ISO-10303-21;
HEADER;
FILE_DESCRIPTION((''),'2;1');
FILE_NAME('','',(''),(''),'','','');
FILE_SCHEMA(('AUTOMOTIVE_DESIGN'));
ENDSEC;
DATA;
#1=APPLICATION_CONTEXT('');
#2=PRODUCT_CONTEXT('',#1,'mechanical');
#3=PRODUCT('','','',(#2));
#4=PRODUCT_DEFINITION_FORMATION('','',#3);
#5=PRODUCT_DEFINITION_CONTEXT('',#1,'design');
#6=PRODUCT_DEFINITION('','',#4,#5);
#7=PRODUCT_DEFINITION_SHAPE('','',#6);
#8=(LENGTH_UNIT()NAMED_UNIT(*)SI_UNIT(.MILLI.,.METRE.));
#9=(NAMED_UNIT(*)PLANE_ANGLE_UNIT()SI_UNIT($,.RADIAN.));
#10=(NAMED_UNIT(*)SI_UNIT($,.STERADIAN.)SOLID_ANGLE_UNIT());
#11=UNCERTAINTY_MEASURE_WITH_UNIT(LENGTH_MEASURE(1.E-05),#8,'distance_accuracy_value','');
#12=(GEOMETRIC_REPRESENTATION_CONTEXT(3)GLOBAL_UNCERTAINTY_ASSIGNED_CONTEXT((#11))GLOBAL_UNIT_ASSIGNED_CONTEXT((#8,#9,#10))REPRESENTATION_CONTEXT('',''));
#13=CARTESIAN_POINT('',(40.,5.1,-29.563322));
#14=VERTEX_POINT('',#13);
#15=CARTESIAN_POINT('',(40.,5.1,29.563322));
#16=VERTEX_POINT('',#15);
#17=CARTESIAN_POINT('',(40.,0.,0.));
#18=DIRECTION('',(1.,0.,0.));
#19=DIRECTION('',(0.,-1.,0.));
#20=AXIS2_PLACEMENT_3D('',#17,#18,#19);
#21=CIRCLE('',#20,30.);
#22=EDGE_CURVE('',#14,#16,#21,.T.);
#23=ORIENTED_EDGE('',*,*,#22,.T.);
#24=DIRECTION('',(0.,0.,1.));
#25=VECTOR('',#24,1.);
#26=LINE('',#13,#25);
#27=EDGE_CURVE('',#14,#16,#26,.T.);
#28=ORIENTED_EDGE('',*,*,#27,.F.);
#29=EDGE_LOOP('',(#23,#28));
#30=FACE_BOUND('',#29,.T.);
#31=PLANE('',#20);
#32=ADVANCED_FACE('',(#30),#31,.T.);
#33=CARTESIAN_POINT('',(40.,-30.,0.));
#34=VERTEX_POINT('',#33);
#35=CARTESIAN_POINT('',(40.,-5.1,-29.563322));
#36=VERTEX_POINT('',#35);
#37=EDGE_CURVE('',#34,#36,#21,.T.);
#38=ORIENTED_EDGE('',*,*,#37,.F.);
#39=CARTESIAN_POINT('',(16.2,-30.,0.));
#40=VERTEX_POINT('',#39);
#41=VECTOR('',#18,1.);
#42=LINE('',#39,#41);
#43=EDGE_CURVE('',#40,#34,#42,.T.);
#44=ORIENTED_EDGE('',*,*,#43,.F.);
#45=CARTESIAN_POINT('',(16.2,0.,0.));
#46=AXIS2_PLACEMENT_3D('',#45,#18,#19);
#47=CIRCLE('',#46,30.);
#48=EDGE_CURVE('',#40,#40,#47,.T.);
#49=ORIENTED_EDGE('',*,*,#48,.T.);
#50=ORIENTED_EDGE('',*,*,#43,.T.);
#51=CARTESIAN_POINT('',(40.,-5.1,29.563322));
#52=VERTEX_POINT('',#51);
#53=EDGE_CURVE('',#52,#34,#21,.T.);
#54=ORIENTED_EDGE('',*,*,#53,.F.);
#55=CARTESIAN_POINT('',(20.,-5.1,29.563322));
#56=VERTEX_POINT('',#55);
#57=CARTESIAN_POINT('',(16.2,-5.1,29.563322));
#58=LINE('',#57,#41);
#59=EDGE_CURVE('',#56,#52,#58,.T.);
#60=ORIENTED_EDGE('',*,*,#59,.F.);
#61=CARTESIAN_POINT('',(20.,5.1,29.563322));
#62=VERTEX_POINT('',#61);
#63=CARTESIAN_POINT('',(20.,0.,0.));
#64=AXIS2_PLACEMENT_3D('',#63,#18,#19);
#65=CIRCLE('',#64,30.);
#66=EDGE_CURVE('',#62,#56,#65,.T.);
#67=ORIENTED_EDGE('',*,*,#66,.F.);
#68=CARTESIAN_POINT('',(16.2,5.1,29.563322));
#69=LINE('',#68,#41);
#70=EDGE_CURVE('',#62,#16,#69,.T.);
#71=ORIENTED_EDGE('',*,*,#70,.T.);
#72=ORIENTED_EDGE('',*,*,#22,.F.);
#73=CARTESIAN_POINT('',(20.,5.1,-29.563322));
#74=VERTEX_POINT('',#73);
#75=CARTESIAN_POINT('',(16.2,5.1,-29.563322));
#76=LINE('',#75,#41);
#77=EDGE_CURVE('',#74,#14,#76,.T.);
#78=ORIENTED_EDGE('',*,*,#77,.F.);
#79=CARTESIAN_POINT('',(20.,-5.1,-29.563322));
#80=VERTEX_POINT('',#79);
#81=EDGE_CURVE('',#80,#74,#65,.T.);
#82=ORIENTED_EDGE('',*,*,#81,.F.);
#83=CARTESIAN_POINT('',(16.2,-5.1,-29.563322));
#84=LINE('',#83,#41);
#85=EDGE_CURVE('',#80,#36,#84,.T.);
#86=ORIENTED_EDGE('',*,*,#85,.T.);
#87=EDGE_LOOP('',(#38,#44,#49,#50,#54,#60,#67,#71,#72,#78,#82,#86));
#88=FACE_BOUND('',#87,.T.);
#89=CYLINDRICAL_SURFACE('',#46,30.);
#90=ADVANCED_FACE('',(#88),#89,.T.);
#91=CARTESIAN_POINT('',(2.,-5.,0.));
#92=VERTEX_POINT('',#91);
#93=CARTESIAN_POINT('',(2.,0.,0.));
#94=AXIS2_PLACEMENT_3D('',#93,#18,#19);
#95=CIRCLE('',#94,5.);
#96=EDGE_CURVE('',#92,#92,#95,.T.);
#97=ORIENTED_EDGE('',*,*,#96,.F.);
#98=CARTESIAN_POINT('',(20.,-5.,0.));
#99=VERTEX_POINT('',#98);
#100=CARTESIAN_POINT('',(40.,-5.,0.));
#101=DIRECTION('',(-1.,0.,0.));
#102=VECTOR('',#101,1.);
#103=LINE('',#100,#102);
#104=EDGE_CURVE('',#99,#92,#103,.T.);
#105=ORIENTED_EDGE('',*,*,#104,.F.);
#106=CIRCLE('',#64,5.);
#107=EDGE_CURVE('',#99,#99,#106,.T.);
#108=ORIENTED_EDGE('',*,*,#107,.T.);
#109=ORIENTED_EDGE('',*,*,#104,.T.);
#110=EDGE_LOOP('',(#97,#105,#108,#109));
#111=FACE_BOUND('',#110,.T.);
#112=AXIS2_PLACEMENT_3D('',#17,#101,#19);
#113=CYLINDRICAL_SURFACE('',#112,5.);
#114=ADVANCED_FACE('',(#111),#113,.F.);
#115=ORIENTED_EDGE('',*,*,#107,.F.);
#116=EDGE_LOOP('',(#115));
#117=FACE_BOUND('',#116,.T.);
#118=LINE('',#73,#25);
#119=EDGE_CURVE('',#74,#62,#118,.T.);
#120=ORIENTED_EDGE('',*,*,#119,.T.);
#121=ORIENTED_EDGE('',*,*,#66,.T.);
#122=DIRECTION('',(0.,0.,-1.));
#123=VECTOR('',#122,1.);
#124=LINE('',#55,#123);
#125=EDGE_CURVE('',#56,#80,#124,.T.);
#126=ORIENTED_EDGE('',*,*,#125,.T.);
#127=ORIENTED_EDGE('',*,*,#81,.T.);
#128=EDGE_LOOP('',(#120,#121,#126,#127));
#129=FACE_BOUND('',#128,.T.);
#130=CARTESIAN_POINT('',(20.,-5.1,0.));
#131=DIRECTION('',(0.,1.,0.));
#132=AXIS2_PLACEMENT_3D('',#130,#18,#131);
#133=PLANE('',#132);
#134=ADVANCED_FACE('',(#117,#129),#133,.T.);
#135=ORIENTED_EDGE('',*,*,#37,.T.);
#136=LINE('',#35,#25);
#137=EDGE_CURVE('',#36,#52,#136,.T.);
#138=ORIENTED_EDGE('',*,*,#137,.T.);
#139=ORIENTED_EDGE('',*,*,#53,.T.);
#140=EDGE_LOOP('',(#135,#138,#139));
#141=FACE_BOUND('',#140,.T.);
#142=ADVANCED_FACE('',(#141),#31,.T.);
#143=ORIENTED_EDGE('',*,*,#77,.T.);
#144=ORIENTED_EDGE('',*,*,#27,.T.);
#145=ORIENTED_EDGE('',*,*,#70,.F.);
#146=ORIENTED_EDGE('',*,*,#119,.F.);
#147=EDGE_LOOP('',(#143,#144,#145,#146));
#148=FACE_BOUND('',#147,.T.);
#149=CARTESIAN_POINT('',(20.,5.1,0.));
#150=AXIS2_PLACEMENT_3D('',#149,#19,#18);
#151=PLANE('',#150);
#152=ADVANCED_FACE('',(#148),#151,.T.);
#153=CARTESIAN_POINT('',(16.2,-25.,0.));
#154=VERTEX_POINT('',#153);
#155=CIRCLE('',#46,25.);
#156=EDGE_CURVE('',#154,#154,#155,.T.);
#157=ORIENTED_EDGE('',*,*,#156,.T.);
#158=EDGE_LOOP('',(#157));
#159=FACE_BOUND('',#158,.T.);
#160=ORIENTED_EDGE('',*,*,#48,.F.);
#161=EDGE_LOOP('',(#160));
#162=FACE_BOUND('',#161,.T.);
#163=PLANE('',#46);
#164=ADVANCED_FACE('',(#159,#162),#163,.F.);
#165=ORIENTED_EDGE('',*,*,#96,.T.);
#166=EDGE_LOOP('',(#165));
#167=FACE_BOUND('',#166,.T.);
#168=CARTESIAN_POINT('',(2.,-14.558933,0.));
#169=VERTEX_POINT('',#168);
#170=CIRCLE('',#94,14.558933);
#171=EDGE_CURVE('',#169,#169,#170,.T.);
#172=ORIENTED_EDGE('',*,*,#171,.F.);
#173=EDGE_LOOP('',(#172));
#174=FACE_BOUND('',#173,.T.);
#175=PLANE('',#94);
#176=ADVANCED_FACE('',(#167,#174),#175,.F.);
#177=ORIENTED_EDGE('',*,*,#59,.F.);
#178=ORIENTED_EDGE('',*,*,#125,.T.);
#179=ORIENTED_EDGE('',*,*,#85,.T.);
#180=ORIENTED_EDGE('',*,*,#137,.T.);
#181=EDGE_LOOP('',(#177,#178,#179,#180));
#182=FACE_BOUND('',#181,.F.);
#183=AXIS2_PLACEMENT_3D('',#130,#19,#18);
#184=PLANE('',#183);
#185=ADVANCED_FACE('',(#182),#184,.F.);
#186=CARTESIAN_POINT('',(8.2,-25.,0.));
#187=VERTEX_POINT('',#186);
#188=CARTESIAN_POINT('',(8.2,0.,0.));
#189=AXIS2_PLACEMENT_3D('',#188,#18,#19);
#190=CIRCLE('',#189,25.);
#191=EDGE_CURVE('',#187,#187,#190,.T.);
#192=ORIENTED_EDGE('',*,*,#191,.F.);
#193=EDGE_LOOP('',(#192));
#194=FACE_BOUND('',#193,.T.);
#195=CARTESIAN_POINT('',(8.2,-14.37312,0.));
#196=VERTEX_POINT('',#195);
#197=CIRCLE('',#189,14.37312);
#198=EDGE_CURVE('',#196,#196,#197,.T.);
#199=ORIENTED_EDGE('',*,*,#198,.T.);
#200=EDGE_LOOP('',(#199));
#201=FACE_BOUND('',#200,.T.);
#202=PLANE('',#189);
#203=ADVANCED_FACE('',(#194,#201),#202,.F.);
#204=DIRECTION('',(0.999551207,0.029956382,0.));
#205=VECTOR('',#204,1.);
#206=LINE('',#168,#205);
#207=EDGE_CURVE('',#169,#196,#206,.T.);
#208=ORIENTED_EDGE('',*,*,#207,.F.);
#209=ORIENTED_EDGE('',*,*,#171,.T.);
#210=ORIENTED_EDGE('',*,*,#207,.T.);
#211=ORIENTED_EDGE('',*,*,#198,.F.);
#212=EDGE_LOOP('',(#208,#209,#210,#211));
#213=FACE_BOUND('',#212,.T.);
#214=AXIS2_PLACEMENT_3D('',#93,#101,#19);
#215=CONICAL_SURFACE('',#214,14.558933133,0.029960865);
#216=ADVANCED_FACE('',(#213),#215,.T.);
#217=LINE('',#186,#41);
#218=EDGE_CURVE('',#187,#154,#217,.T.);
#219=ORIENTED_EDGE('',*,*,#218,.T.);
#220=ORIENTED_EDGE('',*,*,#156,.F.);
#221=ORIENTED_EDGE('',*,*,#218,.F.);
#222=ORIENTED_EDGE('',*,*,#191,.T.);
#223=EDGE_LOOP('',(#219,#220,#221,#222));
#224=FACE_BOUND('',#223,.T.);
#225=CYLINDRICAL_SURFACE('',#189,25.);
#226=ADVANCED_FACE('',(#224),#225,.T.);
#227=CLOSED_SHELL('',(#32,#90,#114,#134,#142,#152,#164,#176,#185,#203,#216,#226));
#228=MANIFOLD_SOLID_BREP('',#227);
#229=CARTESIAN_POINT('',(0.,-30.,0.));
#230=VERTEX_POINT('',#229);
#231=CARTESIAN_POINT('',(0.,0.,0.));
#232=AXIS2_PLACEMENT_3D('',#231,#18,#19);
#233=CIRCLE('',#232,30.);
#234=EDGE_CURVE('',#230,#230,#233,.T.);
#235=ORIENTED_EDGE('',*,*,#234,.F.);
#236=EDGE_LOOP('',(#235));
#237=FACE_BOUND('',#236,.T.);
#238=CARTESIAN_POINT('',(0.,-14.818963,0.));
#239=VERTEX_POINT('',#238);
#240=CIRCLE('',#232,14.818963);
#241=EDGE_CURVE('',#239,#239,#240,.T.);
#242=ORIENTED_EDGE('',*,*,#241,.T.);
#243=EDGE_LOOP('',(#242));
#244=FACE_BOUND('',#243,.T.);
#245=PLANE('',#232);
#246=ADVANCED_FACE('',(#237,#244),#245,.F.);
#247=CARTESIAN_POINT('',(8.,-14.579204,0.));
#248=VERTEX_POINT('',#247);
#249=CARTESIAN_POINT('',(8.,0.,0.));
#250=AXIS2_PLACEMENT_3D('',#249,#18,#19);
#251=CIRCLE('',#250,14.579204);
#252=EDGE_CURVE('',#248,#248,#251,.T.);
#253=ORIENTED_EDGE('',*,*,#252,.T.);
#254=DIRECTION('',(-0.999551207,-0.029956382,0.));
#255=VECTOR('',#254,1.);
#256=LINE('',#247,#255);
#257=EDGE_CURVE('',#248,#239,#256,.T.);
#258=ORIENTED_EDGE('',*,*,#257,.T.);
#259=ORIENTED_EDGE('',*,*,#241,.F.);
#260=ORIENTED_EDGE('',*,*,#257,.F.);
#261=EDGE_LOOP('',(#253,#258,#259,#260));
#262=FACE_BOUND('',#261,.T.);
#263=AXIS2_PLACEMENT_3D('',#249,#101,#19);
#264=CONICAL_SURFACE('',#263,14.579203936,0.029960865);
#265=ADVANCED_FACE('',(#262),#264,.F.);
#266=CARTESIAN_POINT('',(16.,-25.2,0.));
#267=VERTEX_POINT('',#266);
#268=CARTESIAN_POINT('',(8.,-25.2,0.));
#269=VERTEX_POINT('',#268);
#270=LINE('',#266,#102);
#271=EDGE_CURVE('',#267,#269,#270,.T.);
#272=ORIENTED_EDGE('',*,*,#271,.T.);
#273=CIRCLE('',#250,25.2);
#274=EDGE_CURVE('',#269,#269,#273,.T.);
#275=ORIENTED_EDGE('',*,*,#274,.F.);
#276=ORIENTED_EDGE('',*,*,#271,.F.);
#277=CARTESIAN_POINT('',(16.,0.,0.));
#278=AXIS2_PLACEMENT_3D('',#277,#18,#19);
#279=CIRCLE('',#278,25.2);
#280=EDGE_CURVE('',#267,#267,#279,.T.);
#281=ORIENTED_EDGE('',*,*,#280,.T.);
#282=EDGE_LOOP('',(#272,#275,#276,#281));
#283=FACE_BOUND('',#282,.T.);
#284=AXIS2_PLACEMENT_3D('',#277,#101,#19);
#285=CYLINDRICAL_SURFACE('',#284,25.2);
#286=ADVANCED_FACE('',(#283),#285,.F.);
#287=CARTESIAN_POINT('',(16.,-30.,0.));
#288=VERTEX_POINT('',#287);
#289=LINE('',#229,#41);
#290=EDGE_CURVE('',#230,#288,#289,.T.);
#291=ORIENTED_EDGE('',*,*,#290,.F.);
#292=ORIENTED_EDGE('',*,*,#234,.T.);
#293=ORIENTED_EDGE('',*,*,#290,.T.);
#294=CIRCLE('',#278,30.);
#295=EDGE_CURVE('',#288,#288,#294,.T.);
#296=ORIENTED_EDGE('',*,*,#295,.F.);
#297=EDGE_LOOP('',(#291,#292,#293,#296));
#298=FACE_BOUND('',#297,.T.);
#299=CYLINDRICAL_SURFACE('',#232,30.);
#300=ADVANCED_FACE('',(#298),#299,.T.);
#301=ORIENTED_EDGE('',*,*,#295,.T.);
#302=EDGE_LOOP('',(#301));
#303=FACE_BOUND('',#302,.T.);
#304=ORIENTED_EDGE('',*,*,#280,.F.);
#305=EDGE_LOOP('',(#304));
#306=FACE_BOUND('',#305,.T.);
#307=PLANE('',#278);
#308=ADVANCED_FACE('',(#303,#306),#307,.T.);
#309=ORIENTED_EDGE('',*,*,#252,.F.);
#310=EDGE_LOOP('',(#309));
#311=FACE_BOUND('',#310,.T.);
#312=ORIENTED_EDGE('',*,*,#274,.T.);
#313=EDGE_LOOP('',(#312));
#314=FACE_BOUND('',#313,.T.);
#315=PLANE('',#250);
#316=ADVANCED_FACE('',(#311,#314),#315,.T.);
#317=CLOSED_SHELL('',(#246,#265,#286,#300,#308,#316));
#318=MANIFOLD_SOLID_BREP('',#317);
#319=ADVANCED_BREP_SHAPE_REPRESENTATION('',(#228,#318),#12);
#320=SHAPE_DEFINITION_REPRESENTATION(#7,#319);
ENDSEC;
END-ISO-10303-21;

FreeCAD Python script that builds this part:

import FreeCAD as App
import Part
import Sketcher

doc = App.newDocument("Part")
body = doc.addObject("PartDesign::Body", "Body")

sketch1 = body.newObject("Sketcher::SketchObject", "Sketch")
sketch1.AttachmentSupport = (doc.getObject("XY_Plane"), [""])
sketch1.MapMode = "FlatFace"
sketch1.addGeometry([
    Part.LineSegment(App.Vector(8, -14.6, 0), App.Vector(0, -14.8, 0)),
    Part.LineSegment(App.Vector(0, -14.8, 0), App.Vector(0, -30, 0)),
    Part.LineSegment(App.Vector(0, -30, 0), App.Vector(16, -30, 0)),
    Part.LineSegment(App.Vector(16, -30, 0), App.Vector(16, -25.2, 0)),
    Part.LineSegment(App.Vector(16, -25.2, 0), App.Vector(8, -25.2, 0)),
    Part.LineSegment(App.Vector(8, -25.2, 0), App.Vector(8, -14.6, 0)),
], False)
sketch1.addConstraint([
    Sketcher.Constraint("Coincident", 0, 2, 1, 1),
    Sketcher.Constraint("Coincident", 1, 2, 2, 1),
    Sketcher.Constraint("Coincident", 2, 2, 3, 1),
    Sketcher.Constraint("Coincident", 3, 2, 4, 1),
    Sketcher.Constraint("Coincident", 4, 2, 5, 1),
    Sketcher.Constraint("Coincident", 5, 2, 0, 1),
    Sketcher.Constraint("Vertical", 1),
    Sketcher.Constraint("Horizontal", 2),
    Sketcher.Constraint("Vertical", 3),
    Sketcher.Constraint("Horizontal", 4),
    Sketcher.Constraint("Vertical", 5),
    Sketcher.Constraint("PointOnObject", 0, 2, -2),
    Sketcher.Constraint("DistanceX", 2, 1, 2, 2, 16.0),
    Sketcher.Constraint("DistanceX", 4, 2, 4, 1, 8.0),
    Sketcher.Constraint("DistanceY", 3, 1, 3, 2, 4.8),
    Sketcher.Constraint("DistanceY", 1, 2, -1, 1, 30.0),
    Sketcher.Constraint("Distance", 0, 8.003592),
    Sketcher.Constraint("DistanceY", 1, 2, 1, 1, 15.181037),
])
revolution = body.newObject("PartDesign::Revolution", "Revolution")
revolution.Profile = sketch1
revolution.ReferenceAxis = (sketch1, ["H_Axis"])
revolution.Angle = 360
body2 = doc.addObject("PartDesign::Body", "Body001")

sketch2 = body2.newObject("Sketcher::SketchObject", "Sketch001")
sketch2.AttachmentSupport = (doc.getObject("XY_Plane001"), [""])
sketch2.MapMode = "FlatFace"
sketch2.addGeometry([
    Part.LineSegment(App.Vector(8, -14, 0), App.Vector(8, -25, 0)),
    Part.LineSegment(App.Vector(8, -25, 0), App.Vector(16, -25, 0)),
    Part.LineSegment(App.Vector(16, -25, 0), App.Vector(16, -30, 0)),
    Part.LineSegment(App.Vector(16, -30, 0), App.Vector(40, -30, 0)),
    Part.LineSegment(App.Vector(40, -30, 0), App.Vector(40, -5, 0)),
    Part.LineSegment(App.Vector(40, -5, 0), App.Vector(2, -5, 0)),
    Part.LineSegment(App.Vector(2, -5, 0), App.Vector(2, -15, 0)),
    Part.LineSegment(App.Vector(2, -15, 0), App.Vector(8, -14, 0)),
], False)
sketch2.addConstraint([
    Sketcher.Constraint("Coincident", 0, 2, 1, 1),
    Sketcher.Constraint("Coincident", 1, 2, 2, 1),
    Sketcher.Constraint("Coincident", 2, 2, 3, 1),
    Sketcher.Constraint("Coincident", 3, 2, 4, 1),
    Sketcher.Constraint("Coincident", 4, 2, 5, 1),
    Sketcher.Constraint("Coincident", 5, 2, 6, 1),
    Sketcher.Constraint("Coincident", 6, 2, 7, 1),
    Sketcher.Constraint("Coincident", 7, 2, 0, 1),
    Sketcher.Constraint("Vertical", 0),
    Sketcher.Constraint("Horizontal", 1),
    Sketcher.Constraint("Vertical", 2),
    Sketcher.Constraint("Horizontal", 3),
    Sketcher.Constraint("Vertical", 4),
    Sketcher.Constraint("Horizontal", 5),
    Sketcher.Constraint("Vertical", 6),
    Sketcher.Constraint("DistanceX", 1, 1, 1, 2, 8.0),
    Sketcher.Constraint("DistanceX", 5, 2, 5, 1, 38.0),
    Sketcher.Constraint("DistanceY", 2, 2, 2, 1, 5.0),
    Sketcher.Constraint("DistanceY", 4, 1, 4, 2, 25.0),
    Sketcher.Constraint("DistanceX", 3, 1, 3, 2, 23.8),
    Sketcher.Constraint("DistanceY", 0, 2, -1, 1, 25.0),
    Sketcher.Constraint("DistanceX", -1, 1, 3, 2, 40.0),
    Sketcher.Constraint("DistanceY", 0, 2, 0, 1, 10.62688),
    Sketcher.Constraint("DistanceY", 6, 2, 6, 1, 9.558933),
])
revolution2 = body2.newObject("PartDesign::Revolution", "Revolution001")
revolution2.Profile = sketch2
revolution2.ReferenceAxis = (sketch2, ["H_Axis"])
revolution2.Angle = 360

sketch3 = body2.newObject("Sketcher::SketchObject", "Sketch002")
sketch3.AttachmentSupport = (doc.getObject("XY_Plane001"), [""])
sketch3.MapMode = "FlatFace"
sketch3.addGeometry([
    Part.LineSegment(App.Vector(20, 5, 0), App.Vector(20, -5, 0)),
    Part.LineSegment(App.Vector(20, -5, 0), App.Vector(60, -5, 0)),
    Part.LineSegment(App.Vector(60, -5, 0), App.Vector(60, 5, 0)),
    Part.LineSegment(App.Vector(60, 5, 0), App.Vector(20, 5, 0)),
], False)
sketch3.addConstraint([
    Sketcher.Constraint("Coincident", 0, 2, 1, 1),
    Sketcher.Constraint("Coincident", 1, 2, 2, 1),
    Sketcher.Constraint("Coincident", 2, 2, 3, 1),
    Sketcher.Constraint("Coincident", 3, 2, 0, 1),
    Sketcher.Constraint("Vertical", 0),
    Sketcher.Constraint("Horizontal", 1),
    Sketcher.Constraint("Vertical", 2),
    Sketcher.Constraint("Horizontal", 3),
    Sketcher.Constraint("DistanceX", 1, 1, 1, 2, 40.0),
    Sketcher.Constraint("DistanceY", 0, 2, 0, 1, 10.2),
    Sketcher.Constraint("DistanceX", -1, 1, 0, 2, 20.0),
    Sketcher.Constraint("DistanceY", 0, 2, -1, 1, 5.1),
])
pocket1 = body2.newObject("PartDesign::Pocket", "Pocket")
pocket1.Profile = sketch3
pocket1.Type = "ThroughAll"
pocket1.Midplane = True

doc.recompute()
